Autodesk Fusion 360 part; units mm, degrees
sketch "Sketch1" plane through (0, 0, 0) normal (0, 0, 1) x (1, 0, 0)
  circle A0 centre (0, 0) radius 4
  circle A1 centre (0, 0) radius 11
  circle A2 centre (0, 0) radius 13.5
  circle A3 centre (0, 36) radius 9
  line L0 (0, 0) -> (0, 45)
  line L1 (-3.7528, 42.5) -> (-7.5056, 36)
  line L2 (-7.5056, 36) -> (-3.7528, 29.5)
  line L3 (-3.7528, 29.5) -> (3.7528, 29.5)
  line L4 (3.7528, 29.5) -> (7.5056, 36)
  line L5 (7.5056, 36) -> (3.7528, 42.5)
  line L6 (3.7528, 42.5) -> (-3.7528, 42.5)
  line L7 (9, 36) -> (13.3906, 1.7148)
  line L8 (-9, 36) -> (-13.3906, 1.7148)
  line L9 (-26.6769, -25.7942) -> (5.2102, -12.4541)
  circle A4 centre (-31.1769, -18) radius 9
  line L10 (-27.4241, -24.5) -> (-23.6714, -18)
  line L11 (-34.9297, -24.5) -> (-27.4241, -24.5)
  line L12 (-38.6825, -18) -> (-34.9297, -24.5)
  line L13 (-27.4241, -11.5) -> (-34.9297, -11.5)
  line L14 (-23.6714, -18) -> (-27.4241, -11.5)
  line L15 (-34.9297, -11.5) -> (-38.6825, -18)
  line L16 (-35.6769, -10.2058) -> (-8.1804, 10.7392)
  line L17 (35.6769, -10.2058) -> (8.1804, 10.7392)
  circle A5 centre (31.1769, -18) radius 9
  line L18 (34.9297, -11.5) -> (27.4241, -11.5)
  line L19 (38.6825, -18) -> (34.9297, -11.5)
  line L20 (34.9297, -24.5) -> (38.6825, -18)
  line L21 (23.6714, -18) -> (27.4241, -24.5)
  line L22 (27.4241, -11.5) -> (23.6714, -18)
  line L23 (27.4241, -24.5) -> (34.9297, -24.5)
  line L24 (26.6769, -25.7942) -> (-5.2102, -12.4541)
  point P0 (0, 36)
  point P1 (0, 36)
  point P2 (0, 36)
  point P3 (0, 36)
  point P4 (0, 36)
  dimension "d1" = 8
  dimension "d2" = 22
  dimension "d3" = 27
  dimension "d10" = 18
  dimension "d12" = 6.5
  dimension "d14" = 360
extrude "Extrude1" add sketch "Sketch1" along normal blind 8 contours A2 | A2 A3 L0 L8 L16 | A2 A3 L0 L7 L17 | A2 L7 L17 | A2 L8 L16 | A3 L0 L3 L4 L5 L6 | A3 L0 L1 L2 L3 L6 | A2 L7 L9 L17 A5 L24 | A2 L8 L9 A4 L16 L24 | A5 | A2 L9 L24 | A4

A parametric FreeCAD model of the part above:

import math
import FreeCAD as App
import Part
import Sketcher
from FreeCAD import Vector
Q = App.Units.Quantity

doc = App.newDocument("Part")
body = doc.addObject("PartDesign::Body", "Body")

sketch1 = body.newObject("Sketcher::SketchObject", "Sketch")
sketch1.AttachmentSupport = (doc.getObject("XY_Plane"), [""])
sketch1.MapMode = "FlatFace"
sketch1.addGeometry([
    Part.LineSegment(Vector(13, 7, 0), Vector(9, 36, 0)),
    Part.ArcOfCircle(Part.Circle(Vector(0, 36, 0), Vector(0, 0, 1), 9), math.radians(0), math.radians(180)),
    Part.LineSegment(Vector(-9, 36, 0), Vector(-13, 7, 0)),
    Part.LineSegment(Vector(-13, 7, 0), Vector(-36, -10, 0)),
    Part.ArcOfCircle(Part.Circle(Vector(-31, -18, 0), Vector(0, 0, 1), 9), math.radians(120), math.radians(300)),
    Part.LineSegment(Vector(-27, -26, 0), Vector(0, -15, 0)),
    Part.LineSegment(Vector(0, -15, 0), Vector(27, -26, 0)),
    Part.ArcOfCircle(Part.Circle(Vector(31, -18, 0), Vector(0, 0, 1), 9), math.radians(-120), math.radians(60)),
    Part.LineSegment(Vector(36, -10, 0), Vector(13, 7, 0)),
    Part.Circle(Vector(0, 0, 0), Vector(0, 0, 1), 11),
    Part.LineSegment(Vector(4, 30, 0), Vector(-4, 30, 0)),
    Part.LineSegment(Vector(-4, 30, 0), Vector(-8, 36, 0)),
    Part.LineSegment(Vector(-8, 36, 0), Vector(-4, 42, 0)),
    Part.LineSegment(Vector(-4, 42, 0), Vector(4, 42, 0)),
    Part.LineSegment(Vector(4, 42, 0), Vector(8, 36, 0)),
    Part.LineSegment(Vector(8, 36, 0), Vector(4, 30, 0)),
    Part.LineSegment(Vector(35, -12, 0), Vector(39, -18, 0)),
    Part.LineSegment(Vector(39, -18, 0), Vector(35, -24, 0)),
    Part.LineSegment(Vector(35, -24, 0), Vector(27, -24, 0)),
    Part.LineSegment(Vector(27, -24, 0), Vector(24, -18, 0)),
    Part.LineSegment(Vector(24, -18, 0), Vector(27, -12, 0)),
    Part.LineSegment(Vector(27, -12, 0), Vector(35, -12, 0)),
    Part.LineSegment(Vector(-35, -24, 0), Vector(-39, -18, 0)),
    Part.LineSegment(Vector(-39, -18, 0), Vector(-35, -12, 0)),
    Part.LineSegment(Vector(-35, -12, 0), Vector(-27, -12, 0)),
    Part.LineSegment(Vector(-27, -12, 0), Vector(-24, -18, 0)),
    Part.LineSegment(Vector(-24, -18, 0), Vector(-27, -24, 0)),
    Part.LineSegment(Vector(-27, -24, 0), Vector(-35, -24, 0)),
], False)
sketch1.addConstraint([
    Sketcher.Constraint("Coincident", 0, 2, 1, 1),
    Sketcher.Constraint("Coincident", 1, 2, 2, 1),
    Sketcher.Constraint("Coincident", 2, 2, 3, 1),
    Sketcher.Constraint("Coincident", 3, 2, 4, 1),
    Sketcher.Constraint("Coincident", 4, 2, 5, 1),
    Sketcher.Constraint("Coincident", 5, 2, 6, 1),
    Sketcher.Constraint("Coincident", 6, 2, 7, 1),
    Sketcher.Constraint("Coincident", 7, 2, 8, 1),
    Sketcher.Constraint("Coincident", 8, 2, 0, 1),
    Sketcher.Constraint("Coincident", 10, 2, 11, 1),
    Sketcher.Constraint("Coincident", 11, 2, 12, 1),
    Sketcher.Constraint("Coincident", 12, 2, 13, 1),
    Sketcher.Constraint("Coincident", 13, 2, 14, 1),
    Sketcher.Constraint("Coincident", 14, 2, 15, 1),
    Sketcher.Constraint("Coincident", 15, 2, 10, 1),
    Sketcher.Constraint("Coincident", 16, 2, 17, 1),
    Sketcher.Constraint("Coincident", 17, 2, 18, 1),
    Sketcher.Constraint("Coincident", 18, 2, 19, 1),
    Sketcher.Constraint("Coincident", 19, 2, 20, 1),
    Sketcher.Constraint("Coincident", 20, 2, 21, 1),
    Sketcher.Constraint("Coincident", 21, 2, 16, 1),
    Sketcher.Constraint("Coincident", 22, 2, 23, 1),
    Sketcher.Constraint("Coincident", 23, 2, 24, 1),
    Sketcher.Constraint("Coincident", 24, 2, 25, 1),
    Sketcher.Constraint("Coincident", 25, 2, 26, 1),
    Sketcher.Constraint("Coincident", 26, 2, 27, 1),
    Sketcher.Constraint("Coincident", 27, 2, 22, 1),
    Sketcher.Constraint("Horizontal", 10),
    Sketcher.Constraint("Horizontal", 13),
    Sketcher.Constraint("Horizontal", 18),
    Sketcher.Constraint("Horizontal", 21),
    Sketcher.Constraint("Horizontal", 24),
    Sketcher.Constraint("Horizontal", 27),
    Sketcher.Constraint("Coincident", 9, 3, -1, 1),
    Sketcher.Constraint("Equal", 1, 4),
    Sketcher.Constraint("Equal", 4, 7),
    Sketcher.Constraint("Symmetric", 4, 3, 7, 3, -2),
    Sketcher.Constraint("Symmetric", 0, 2, 1, 2, -2),
    Sketcher.Constraint("Symmetric", 2, 2, 8, 2, -2),
    Sketcher.Constraint("Symmetric", 11, 2, 14, 2, -2),
    Sketcher.Constraint("Symmetric", 16, 2, 22, 2, -2),
    Sketcher.Constraint("Symmetric", 21, 2, 23, 2, -2),
    Sketcher.Constraint("Symmetric", 19, 2, 25, 2, -2),
    Sketcher.Constraint("Symmetric", 18, 2, 26, 2, -2),
    Sketcher.Constraint("PointOnObject", 5, 2, -2),
    Sketcher.Constraint("Parallel", 11, 14),
    Sketcher.Constraint("Parallel", 12, 15),
    Sketcher.Constraint("Parallel", 14, 16),
    Sketcher.Constraint("Parallel", 15, 17),
    Sketcher.Constraint("Parallel", 16, 19),
    Sketcher.Constraint("Parallel", 17, 20),
    Sketcher.Constraint("Parallel", 19, 22),
    Sketcher.Constraint("Parallel", 20, 23),
    Sketcher.Constraint("Parallel", 22, 25),
    Sketcher.Constraint("Horizontal", 1, 3, 0, 2),
    Sketcher.Constraint("Horizontal", 4, 2, 6, 2),
    Sketcher.Constraint("Horizontal", 3, 2, 7, 2),
    Sketcher.Constraint("Horizontal", 1, 2, 11, 2),
    Sketcher.Constraint("Horizontal", 7, 3, 16, 2),
    Sketcher.Constraint("Horizontal", 16, 2, 19, 2),
    Sketcher.Constraint("Vertical", 10, 2, 12, 2),
    Sketcher.Constraint("Vertical", 18, 2, 20, 2),
    Sketcher.Constraint("Equal", 13, 18),
    Sketcher.Constraint("Equal", 2, 3),
    Sketcher.Constraint("Equal", 3, 5),
    Sketcher.Constraint("Equal", 15, 16),
    Sketcher.Constraint("Diameter", 9, Q("22 mm")),
    Sketcher.Constraint("Radius", 1, Q("9 mm")),
    Sketcher.Constraint("DistanceY", 4, 3, -1, 1, Q("18 mm")),
    Sketcher.Constraint("DistanceY", 10, 2, 1, 3, Q("6.5 mm")),
    Sketcher.Constraint("Angle", 11, Q("120.0002 deg")),
    Sketcher.Constraint("DistanceY", -1, 1, 1, 3, Q("36 mm")),
    Sketcher.Constraint("DistanceX", 3, 2, 4, 2, Q("9 mm")),
    Sketcher.Constraint("DistanceX", 3, 2, 4, 3, Q("4.5 mm")),
    Sketcher.Constraint("DistanceX", 2, 2, 6, 2, Q("39.35 mm")),
    Sketcher.Constraint("DistanceX", 10, 2, 10, 1, Q("7.5056 mm")),
    Sketcher.Constraint("DistanceX", 4, 3, -1, 1, Q("31.177 mm")),
    Sketcher.Constraint("DistanceX", -1, 1, 18, 2, Q("27.424 mm")),
])
pad1 = body.newObject("PartDesign::Pad", "Pad")
pad1.Profile = sketch1
pad1.Length = 8

doc.recompute()
